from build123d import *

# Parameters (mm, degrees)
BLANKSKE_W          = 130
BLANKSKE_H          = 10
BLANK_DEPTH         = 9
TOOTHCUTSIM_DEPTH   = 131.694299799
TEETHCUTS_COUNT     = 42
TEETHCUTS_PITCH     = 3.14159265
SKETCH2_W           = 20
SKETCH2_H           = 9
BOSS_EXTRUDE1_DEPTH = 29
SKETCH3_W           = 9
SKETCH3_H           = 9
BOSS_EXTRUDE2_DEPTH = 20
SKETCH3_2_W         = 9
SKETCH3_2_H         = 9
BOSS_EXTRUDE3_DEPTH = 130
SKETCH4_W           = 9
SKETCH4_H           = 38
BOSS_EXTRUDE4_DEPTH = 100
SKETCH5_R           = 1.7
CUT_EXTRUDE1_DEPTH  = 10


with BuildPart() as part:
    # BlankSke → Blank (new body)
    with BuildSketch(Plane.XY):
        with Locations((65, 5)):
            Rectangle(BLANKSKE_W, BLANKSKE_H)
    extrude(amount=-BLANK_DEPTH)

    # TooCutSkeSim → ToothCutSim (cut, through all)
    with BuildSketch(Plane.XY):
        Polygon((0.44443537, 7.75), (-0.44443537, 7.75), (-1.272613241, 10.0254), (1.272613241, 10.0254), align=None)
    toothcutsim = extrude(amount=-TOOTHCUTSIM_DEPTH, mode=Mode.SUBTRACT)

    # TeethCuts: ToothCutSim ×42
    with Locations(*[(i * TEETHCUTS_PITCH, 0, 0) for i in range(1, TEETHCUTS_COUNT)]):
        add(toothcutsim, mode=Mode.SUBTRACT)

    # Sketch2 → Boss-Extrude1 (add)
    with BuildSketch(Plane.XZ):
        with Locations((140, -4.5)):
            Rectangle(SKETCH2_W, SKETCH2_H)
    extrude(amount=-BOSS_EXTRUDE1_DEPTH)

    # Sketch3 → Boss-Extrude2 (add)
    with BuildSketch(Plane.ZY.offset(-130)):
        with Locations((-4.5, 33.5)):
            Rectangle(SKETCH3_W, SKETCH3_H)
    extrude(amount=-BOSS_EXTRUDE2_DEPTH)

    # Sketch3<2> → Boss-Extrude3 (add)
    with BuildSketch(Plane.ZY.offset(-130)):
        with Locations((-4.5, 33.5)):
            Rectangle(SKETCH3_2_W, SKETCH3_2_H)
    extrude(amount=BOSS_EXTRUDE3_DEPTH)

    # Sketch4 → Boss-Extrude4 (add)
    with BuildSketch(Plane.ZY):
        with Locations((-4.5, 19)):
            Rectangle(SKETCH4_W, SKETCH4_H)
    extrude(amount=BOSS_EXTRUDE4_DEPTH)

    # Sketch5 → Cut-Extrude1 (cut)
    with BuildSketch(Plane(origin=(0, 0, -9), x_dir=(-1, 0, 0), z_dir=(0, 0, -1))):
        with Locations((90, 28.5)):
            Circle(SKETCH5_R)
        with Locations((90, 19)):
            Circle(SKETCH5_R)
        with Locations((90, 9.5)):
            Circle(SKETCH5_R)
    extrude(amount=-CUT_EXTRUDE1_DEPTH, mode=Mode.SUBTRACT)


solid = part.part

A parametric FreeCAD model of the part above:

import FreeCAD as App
import Part
import Sketcher
from FreeCAD import Vector
Q = App.Units.Quantity


def add_polygon(sketch, points):
    """Adds a closed chain of lines whose ends are joined by coincident constraints."""
    first, n = sketch.GeometryCount, len(points)
    for a, b in zip(points, points[1:] + points[:1]):
        sketch.addGeometry(Part.LineSegment(App.Vector(*a, 0), App.Vector(*b, 0)), False)
    for i in range(n):
        sketch.addConstraint(Sketcher.Constraint("Coincident", first + i, 2, first + (i + 1) % n, 1))

doc = App.newDocument("Part")
body = doc.addObject("PartDesign::Body", "Body")

# Sketch on XY plane
sketch1 = body.newObject("Sketcher::SketchObject", "Sketch")
sketch1.AttachmentSupport = (doc.getObject("XY_Plane"), [""])
sketch1.MapMode = "FlatFace"
add_polygon(sketch1, [(0, 10), (0, 0), (130, 0), (130, 10)])  # lines 0-3
sketch1.addConstraint([
    Sketcher.Constraint("Vertical", 0),
    Sketcher.Constraint("Horizontal", 1),
    Sketcher.Constraint("Vertical", 2),
    Sketcher.Constraint("Horizontal", 3),
    Sketcher.Constraint("Coincident", 0, 2, -1, 1),
    Sketcher.Constraint("DistanceX", 1, 1, 1, 2, 130.0),
    Sketcher.Constraint("DistanceY", 0, 2, 0, 1, 10.0),
])
pad1 = body.newObject("PartDesign::Pad", "Pad")
pad1.Profile = sketch1
pad1.Length = 9
pad1.Reversed = True

# Sketch on XY plane
sketch2 = body.newObject("Sketcher::SketchObject", "Sketch001")
sketch2.AttachmentSupport = (doc.getObject("XY_Plane"), [""])
sketch2.MapMode = "FlatFace"
add_polygon(sketch2, [(-0.4, 7.8), (0.4, 7.8), (1.3, 10), (-1.3, 10)])  # lines 0-3
sketch2.addConstraint([
    Sketcher.Constraint("Horizontal", 0),
    Sketcher.Constraint("Horizontal", 2),
    Sketcher.Constraint("Equal", 1, 3),
    Sketcher.Constraint("Angle", 1, Q("70 deg")),
    Sketcher.Constraint("DistanceY", -1, 1, 0, 2, 7.75),
    Sketcher.Constraint("DistanceX", 0, 1, 0, 2, 0.888871),
    Sketcher.Constraint("DistanceY", -1, 1, 1, 2, 10.0254),
    Sketcher.Constraint("DistanceX", -1, 1, 0, 2, 0.444435),
])
pocket1 = body.newObject("PartDesign::Pocket", "Pocket")
pocket1.Profile = sketch2
pocket1.Type = "ThroughAll"
doc.recompute()

linearpattern = body.newObject("PartDesign::LinearPattern", "LinearPattern")
linearpattern.Originals = [pocket1]
linearpattern.Direction = (doc.getObject("X_Axis"), [""])
linearpattern.Mode = "offset"
linearpattern.Offset = 3.141593
linearpattern.Occurrences = 42
body.Tip = linearpattern

# Sketch on XZ plane
sketch3 = body.newObject("Sketcher::SketchObject", "Sketch002")
sketch3.AttachmentSupport = (doc.getObject("XZ_Plane"), [""])
sketch3.MapMode = "FlatFace"
add_polygon(sketch3, [(130, 0), (130, -9), (150, -9), (150, 0)])  # lines 0-3
sketch3.addConstraint([
    Sketcher.Constraint("Vertical", 0),
    Sketcher.Constraint("Horizontal", 1),
    Sketcher.Constraint("Vertical", 2),
    Sketcher.Constraint("Horizontal", 3),
    Sketcher.Constraint("PointOnObject", 2, 2, -1),
    Sketcher.Constraint("DistanceX", 1, 1, 1, 2, 20.0),
    Sketcher.Constraint("DistanceY", 0, 2, 0, 1, 9.0),
    Sketcher.Constraint("DistanceX", -1, 1, 0, 2, 130.0),
])
pad2 = body.newObject("PartDesign::Pad", "Pad001")
pad2.Profile = sketch3
pad2.Length = 29
pad2.Reversed = True

# Sketch on YZ plane
sketch4 = body.newObject("Sketcher::SketchObject", "Sketch003")
sketch4.AttachmentSupport = (doc.getObject("YZ_Plane"), [""])
sketch4.MapMode = "FlatFace"
sketch4.AttachmentOffset = App.Placement(Vector(0, 0, 130), App.Rotation())
add_polygon(sketch4, [(38, -9), (29, -9), (29, 0), (38, 0)])  # lines 0-3
sketch4.addConstraint([
    Sketcher.Constraint("Horizontal", 0),
    Sketcher.Constraint("Vertical", 1),
    Sketcher.Constraint("Horizontal", 2),
    Sketcher.Constraint("Vertical", 3),
    Sketcher.Constraint("PointOnObject", 1, 2, -1),
    Sketcher.Constraint("Equal", 2, 1),
    Sketcher.Constraint("DistanceX", 0, 2, 0, 1, 9.0),
    Sketcher.Constraint("DistanceX", -1, 1, 0, 2, 29.0),
])
pad3 = body.newObject("PartDesign::Pad", "Pad002")
pad3.Profile = sketch4
pad3.Length = 20

# Sketch on YZ plane
sketch5 = body.newObject("Sketcher::SketchObject", "Sketch004")
sketch5.AttachmentSupport = (doc.getObject("YZ_Plane"), [""])
sketch5.MapMode = "FlatFace"
sketch5.AttachmentOffset = App.Placement(Vector(0, 0, 130), App.Rotation())
add_polygon(sketch5, [(38, -9), (29, -9), (29, 0), (38, 0)])  # lines 0-3
sketch5.addConstraint([
    Sketcher.Constraint("Horizontal", 0),
    Sketcher.Constraint("Vertical", 1),
    Sketcher.Constraint("Horizontal", 2),
    Sketcher.Constraint("Vertical", 3),
    Sketcher.Constraint("PointOnObject", 1, 2, -1),
    Sketcher.Constraint("Equal", 2, 1),
    Sketcher.Constraint("DistanceX", 0, 2, 0, 1, 9.0),
    Sketcher.Constraint("DistanceX", -1, 1, 0, 2, 29.0),
])
pad4 = body.newObject("PartDesign::Pad", "Pad003")
pad4.Profile = sketch5
pad4.Length = 130
pad4.Reversed = True

# Sketch on YZ plane
sketch6 = body.newObject("Sketcher::SketchObject", "Sketch005")
sketch6.AttachmentSupport = (doc.getObject("YZ_Plane"), [""])
sketch6.MapMode = "FlatFace"
add_polygon(sketch6, [(38, -9), (0, -9), (0, 0), (38, 0)])  # lines 0-3
sketch6.addConstraint([
    Sketcher.Constraint("Horizontal", 0),
    Sketcher.Constraint("Vertical", 1),
    Sketcher.Constraint("Horizontal", 2),
    Sketcher.Constraint("Vertical", 3),
    Sketcher.Constraint("Coincident", 1, 2, -1, 1),
    Sketcher.Constraint("DistanceX", 0, 2, 0, 1, 38.0),
    Sketcher.Constraint("DistanceY", 1, 1, 1, 2, 9.0),
])
pad5 = body.newObject("PartDesign::Pad", "Pad004")
pad5.Profile = sketch6
pad5.Length = 100
pad5.Reversed = True

# Sketch on XY plane
sketch7 = body.newObject("Sketcher::SketchObject", "Sketch006")
sketch7.AttachmentSupport = (doc.getObject("XY_Plane"), [""])
sketch7.MapMode = "FlatFace"
sketch7.AttachmentOffset = App.Placement(Vector(0, 0, -9), App.Rotation())
sketch7.addGeometry([
    Part.Circle(Vector(-90, 28.5, 0), Vector(0, 0, 1), 1.7),
    Part.Circle(Vector(-90, 19, 0), Vector(0, 0, 1), 1.7),
    Part.Circle(Vector(-90, 9.5, 0), Vector(0, 0, 1), 1.7),
], False)
sketch7.addConstraint([
    Sketcher.Constraint("Equal", 0, 1),
    Sketcher.Constraint("Equal", 1, 2),
    Sketcher.Constraint("Vertical", 0, 3, 1, 3),
    Sketcher.Constraint("Vertical", 1, 3, 2, 3),
    Sketcher.Constraint("Diameter", 0, 3.4),
    Sketcher.Constraint("DistanceX", 0, 3, -1, 1, 90.0),
    Sketcher.Constraint("DistanceY", -1, 1, 1, 3, 19.0),
    Sketcher.Constraint("DistanceY", 2, 3, 0, 3, 19.0),
    Sketcher.Constraint("DistanceY", -1, 1, 0, 3, 28.5),
])
pocket2 = body.newObject("PartDesign::Pocket", "Pocket001")
pocket2.Profile = sketch7
pocket2.Length = 10
pocket2.Reversed = True

doc.recompute()
